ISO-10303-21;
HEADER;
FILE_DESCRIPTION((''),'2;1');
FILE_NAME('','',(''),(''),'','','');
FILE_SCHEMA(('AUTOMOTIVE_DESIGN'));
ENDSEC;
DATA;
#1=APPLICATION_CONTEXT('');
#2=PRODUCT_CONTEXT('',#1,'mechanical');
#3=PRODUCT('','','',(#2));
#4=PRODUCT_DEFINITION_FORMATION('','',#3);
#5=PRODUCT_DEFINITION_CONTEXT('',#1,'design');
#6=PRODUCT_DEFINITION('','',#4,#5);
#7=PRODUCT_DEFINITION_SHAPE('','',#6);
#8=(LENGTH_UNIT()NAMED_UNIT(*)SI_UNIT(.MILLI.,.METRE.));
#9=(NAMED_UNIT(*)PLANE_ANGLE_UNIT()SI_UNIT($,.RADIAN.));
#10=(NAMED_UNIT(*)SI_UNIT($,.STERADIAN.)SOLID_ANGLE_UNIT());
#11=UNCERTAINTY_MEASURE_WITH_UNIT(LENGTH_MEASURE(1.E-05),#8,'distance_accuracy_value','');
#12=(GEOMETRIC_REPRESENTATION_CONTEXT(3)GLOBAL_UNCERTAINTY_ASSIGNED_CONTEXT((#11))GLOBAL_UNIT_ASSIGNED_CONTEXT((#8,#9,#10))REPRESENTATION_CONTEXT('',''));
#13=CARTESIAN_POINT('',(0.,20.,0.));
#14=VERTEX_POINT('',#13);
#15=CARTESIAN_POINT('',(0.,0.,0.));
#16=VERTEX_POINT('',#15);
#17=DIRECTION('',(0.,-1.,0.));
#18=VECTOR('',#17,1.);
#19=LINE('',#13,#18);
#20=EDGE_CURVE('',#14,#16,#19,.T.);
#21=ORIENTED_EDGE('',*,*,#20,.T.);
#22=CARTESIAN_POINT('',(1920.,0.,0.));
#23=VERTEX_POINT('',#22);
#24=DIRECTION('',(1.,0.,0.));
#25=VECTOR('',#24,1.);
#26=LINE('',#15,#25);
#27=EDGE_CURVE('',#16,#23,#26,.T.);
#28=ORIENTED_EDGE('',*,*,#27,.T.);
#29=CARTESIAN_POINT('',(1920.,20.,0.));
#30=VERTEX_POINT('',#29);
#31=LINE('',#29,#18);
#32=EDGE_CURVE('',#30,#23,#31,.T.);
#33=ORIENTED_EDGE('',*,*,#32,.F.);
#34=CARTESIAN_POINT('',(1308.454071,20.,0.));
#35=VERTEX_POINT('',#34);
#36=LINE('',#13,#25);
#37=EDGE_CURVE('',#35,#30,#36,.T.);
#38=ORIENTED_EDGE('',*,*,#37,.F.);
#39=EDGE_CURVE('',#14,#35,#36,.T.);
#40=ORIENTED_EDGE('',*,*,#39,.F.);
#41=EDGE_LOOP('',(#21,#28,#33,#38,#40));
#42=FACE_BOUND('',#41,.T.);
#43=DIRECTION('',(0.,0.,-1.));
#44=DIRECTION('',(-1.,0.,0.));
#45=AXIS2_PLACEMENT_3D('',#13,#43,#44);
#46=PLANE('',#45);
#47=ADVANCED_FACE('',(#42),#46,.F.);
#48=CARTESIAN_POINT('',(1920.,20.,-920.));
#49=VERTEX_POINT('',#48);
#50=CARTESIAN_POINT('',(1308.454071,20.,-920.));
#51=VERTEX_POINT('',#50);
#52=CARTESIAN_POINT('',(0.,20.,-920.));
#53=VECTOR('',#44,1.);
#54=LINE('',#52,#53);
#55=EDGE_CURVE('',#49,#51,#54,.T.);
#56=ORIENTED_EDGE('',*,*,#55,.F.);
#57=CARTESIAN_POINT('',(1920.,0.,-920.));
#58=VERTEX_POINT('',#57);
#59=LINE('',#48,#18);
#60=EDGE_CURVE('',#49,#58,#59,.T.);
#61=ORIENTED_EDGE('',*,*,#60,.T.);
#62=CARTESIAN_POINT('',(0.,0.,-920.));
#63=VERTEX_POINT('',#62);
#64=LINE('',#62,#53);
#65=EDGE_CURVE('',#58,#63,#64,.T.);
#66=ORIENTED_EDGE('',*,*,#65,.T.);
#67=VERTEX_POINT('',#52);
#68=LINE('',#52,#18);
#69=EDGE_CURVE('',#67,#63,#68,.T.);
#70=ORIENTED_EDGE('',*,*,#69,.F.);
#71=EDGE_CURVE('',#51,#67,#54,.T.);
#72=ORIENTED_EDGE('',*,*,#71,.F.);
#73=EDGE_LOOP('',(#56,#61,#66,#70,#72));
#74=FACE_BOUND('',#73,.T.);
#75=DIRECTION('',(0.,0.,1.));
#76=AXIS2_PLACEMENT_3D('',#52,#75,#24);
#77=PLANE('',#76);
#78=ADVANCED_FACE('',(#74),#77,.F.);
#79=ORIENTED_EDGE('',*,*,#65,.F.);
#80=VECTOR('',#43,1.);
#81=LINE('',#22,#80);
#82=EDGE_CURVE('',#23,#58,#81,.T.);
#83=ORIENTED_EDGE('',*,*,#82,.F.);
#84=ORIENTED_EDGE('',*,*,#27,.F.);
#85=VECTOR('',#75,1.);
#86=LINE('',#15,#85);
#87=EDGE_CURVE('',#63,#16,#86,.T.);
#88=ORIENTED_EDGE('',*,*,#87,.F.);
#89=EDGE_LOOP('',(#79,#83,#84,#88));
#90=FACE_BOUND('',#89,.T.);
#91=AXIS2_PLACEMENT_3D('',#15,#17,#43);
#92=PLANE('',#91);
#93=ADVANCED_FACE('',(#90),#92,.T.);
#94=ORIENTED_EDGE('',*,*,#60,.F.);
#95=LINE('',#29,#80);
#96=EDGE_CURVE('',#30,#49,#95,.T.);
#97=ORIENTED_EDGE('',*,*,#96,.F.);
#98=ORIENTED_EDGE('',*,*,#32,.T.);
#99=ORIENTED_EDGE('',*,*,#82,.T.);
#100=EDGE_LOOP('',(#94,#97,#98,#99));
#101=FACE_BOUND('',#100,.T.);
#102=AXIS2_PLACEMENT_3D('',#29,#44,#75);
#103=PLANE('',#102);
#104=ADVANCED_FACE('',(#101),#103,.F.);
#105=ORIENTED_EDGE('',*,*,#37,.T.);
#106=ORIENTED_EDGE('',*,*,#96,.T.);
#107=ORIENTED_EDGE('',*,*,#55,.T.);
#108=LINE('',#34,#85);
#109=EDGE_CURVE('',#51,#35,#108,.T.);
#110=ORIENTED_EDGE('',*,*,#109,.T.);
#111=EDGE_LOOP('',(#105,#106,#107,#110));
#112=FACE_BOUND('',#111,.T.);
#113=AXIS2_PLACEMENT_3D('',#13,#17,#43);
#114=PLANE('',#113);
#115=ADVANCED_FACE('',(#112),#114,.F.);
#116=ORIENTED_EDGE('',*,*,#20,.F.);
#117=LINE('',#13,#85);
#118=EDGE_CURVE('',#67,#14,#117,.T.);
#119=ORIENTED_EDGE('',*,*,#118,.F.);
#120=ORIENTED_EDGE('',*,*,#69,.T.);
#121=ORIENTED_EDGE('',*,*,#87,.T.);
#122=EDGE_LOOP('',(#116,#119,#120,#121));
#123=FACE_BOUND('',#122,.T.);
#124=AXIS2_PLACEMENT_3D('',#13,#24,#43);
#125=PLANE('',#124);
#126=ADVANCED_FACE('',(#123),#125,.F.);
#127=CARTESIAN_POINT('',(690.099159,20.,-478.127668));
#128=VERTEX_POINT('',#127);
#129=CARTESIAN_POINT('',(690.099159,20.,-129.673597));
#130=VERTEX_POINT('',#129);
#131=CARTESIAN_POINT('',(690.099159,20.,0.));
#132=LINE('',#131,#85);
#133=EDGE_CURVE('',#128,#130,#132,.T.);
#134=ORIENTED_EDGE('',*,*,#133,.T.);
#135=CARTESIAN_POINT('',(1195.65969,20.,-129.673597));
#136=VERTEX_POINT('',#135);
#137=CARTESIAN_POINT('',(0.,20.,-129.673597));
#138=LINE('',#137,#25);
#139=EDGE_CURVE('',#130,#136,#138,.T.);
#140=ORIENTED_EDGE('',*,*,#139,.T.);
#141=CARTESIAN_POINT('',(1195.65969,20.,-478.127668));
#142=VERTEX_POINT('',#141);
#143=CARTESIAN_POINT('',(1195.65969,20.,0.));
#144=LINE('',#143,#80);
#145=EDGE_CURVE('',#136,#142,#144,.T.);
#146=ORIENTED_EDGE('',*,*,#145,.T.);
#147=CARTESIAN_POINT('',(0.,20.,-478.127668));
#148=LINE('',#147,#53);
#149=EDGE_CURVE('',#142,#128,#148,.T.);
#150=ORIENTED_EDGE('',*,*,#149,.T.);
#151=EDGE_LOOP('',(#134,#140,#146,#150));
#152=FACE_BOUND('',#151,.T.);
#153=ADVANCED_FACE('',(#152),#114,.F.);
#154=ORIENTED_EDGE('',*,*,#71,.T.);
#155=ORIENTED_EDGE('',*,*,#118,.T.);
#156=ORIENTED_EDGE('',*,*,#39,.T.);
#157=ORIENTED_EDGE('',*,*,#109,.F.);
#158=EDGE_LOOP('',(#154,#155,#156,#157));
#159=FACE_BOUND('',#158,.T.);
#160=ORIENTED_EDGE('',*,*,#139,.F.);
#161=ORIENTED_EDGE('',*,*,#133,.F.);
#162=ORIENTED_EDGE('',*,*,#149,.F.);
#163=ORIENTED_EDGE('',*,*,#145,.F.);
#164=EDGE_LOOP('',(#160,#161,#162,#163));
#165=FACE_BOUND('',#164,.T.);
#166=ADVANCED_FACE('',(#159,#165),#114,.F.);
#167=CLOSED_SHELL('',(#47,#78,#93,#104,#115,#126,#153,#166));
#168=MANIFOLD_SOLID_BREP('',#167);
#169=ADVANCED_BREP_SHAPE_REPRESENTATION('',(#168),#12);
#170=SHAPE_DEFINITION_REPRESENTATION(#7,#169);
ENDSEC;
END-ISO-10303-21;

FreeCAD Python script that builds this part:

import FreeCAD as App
import Part
import Sketcher


def add_polygon(sketch, points):
    """Adds a closed chain of lines whose ends are joined by coincident constraints."""
    first, n = sketch.GeometryCount, len(points)
    for a, b in zip(points, points[1:] + points[:1]):
        sketch.addGeometry(Part.LineSegment(App.Vector(*a, 0), App.Vector(*b, 0)), False)
    for i in range(n):
        sketch.addConstraint(Sketcher.Constraint("Coincident", first + i, 2, first + (i + 1) % n, 1))

doc = App.newDocument("Part")
body = doc.addObject("PartDesign::Body", "Body")

sketch1 = body.newObject("Sketcher::SketchObject", "Sketch")
sketch1.AttachmentSupport = (doc.getObject("XZ_Plane"), [""])
sketch1.MapMode = "FlatFace"
add_polygon(sketch1, [(0, -920), (0, 0), (1920, 0), (1920, -920)])
sketch1.addConstraint([
    Sketcher.Constraint("Vertical", 0),
    Sketcher.Constraint("Horizontal", 1),
    Sketcher.Constraint("Vertical", 2),
    Sketcher.Constraint("Horizontal", 3),
    Sketcher.Constraint("Coincident", 0, 2, -1, 1),
    Sketcher.Constraint("DistanceX", 1, 1, 1, 2, 1920.0),
    Sketcher.Constraint("DistanceY", 0, 1, 0, 2, 920.0),
])
pad1 = body.newObject("PartDesign::Pad", "Pad")
pad1.Profile = sketch1
pad1.Length = 20
pad1.Reversed = True

doc.recompute()
